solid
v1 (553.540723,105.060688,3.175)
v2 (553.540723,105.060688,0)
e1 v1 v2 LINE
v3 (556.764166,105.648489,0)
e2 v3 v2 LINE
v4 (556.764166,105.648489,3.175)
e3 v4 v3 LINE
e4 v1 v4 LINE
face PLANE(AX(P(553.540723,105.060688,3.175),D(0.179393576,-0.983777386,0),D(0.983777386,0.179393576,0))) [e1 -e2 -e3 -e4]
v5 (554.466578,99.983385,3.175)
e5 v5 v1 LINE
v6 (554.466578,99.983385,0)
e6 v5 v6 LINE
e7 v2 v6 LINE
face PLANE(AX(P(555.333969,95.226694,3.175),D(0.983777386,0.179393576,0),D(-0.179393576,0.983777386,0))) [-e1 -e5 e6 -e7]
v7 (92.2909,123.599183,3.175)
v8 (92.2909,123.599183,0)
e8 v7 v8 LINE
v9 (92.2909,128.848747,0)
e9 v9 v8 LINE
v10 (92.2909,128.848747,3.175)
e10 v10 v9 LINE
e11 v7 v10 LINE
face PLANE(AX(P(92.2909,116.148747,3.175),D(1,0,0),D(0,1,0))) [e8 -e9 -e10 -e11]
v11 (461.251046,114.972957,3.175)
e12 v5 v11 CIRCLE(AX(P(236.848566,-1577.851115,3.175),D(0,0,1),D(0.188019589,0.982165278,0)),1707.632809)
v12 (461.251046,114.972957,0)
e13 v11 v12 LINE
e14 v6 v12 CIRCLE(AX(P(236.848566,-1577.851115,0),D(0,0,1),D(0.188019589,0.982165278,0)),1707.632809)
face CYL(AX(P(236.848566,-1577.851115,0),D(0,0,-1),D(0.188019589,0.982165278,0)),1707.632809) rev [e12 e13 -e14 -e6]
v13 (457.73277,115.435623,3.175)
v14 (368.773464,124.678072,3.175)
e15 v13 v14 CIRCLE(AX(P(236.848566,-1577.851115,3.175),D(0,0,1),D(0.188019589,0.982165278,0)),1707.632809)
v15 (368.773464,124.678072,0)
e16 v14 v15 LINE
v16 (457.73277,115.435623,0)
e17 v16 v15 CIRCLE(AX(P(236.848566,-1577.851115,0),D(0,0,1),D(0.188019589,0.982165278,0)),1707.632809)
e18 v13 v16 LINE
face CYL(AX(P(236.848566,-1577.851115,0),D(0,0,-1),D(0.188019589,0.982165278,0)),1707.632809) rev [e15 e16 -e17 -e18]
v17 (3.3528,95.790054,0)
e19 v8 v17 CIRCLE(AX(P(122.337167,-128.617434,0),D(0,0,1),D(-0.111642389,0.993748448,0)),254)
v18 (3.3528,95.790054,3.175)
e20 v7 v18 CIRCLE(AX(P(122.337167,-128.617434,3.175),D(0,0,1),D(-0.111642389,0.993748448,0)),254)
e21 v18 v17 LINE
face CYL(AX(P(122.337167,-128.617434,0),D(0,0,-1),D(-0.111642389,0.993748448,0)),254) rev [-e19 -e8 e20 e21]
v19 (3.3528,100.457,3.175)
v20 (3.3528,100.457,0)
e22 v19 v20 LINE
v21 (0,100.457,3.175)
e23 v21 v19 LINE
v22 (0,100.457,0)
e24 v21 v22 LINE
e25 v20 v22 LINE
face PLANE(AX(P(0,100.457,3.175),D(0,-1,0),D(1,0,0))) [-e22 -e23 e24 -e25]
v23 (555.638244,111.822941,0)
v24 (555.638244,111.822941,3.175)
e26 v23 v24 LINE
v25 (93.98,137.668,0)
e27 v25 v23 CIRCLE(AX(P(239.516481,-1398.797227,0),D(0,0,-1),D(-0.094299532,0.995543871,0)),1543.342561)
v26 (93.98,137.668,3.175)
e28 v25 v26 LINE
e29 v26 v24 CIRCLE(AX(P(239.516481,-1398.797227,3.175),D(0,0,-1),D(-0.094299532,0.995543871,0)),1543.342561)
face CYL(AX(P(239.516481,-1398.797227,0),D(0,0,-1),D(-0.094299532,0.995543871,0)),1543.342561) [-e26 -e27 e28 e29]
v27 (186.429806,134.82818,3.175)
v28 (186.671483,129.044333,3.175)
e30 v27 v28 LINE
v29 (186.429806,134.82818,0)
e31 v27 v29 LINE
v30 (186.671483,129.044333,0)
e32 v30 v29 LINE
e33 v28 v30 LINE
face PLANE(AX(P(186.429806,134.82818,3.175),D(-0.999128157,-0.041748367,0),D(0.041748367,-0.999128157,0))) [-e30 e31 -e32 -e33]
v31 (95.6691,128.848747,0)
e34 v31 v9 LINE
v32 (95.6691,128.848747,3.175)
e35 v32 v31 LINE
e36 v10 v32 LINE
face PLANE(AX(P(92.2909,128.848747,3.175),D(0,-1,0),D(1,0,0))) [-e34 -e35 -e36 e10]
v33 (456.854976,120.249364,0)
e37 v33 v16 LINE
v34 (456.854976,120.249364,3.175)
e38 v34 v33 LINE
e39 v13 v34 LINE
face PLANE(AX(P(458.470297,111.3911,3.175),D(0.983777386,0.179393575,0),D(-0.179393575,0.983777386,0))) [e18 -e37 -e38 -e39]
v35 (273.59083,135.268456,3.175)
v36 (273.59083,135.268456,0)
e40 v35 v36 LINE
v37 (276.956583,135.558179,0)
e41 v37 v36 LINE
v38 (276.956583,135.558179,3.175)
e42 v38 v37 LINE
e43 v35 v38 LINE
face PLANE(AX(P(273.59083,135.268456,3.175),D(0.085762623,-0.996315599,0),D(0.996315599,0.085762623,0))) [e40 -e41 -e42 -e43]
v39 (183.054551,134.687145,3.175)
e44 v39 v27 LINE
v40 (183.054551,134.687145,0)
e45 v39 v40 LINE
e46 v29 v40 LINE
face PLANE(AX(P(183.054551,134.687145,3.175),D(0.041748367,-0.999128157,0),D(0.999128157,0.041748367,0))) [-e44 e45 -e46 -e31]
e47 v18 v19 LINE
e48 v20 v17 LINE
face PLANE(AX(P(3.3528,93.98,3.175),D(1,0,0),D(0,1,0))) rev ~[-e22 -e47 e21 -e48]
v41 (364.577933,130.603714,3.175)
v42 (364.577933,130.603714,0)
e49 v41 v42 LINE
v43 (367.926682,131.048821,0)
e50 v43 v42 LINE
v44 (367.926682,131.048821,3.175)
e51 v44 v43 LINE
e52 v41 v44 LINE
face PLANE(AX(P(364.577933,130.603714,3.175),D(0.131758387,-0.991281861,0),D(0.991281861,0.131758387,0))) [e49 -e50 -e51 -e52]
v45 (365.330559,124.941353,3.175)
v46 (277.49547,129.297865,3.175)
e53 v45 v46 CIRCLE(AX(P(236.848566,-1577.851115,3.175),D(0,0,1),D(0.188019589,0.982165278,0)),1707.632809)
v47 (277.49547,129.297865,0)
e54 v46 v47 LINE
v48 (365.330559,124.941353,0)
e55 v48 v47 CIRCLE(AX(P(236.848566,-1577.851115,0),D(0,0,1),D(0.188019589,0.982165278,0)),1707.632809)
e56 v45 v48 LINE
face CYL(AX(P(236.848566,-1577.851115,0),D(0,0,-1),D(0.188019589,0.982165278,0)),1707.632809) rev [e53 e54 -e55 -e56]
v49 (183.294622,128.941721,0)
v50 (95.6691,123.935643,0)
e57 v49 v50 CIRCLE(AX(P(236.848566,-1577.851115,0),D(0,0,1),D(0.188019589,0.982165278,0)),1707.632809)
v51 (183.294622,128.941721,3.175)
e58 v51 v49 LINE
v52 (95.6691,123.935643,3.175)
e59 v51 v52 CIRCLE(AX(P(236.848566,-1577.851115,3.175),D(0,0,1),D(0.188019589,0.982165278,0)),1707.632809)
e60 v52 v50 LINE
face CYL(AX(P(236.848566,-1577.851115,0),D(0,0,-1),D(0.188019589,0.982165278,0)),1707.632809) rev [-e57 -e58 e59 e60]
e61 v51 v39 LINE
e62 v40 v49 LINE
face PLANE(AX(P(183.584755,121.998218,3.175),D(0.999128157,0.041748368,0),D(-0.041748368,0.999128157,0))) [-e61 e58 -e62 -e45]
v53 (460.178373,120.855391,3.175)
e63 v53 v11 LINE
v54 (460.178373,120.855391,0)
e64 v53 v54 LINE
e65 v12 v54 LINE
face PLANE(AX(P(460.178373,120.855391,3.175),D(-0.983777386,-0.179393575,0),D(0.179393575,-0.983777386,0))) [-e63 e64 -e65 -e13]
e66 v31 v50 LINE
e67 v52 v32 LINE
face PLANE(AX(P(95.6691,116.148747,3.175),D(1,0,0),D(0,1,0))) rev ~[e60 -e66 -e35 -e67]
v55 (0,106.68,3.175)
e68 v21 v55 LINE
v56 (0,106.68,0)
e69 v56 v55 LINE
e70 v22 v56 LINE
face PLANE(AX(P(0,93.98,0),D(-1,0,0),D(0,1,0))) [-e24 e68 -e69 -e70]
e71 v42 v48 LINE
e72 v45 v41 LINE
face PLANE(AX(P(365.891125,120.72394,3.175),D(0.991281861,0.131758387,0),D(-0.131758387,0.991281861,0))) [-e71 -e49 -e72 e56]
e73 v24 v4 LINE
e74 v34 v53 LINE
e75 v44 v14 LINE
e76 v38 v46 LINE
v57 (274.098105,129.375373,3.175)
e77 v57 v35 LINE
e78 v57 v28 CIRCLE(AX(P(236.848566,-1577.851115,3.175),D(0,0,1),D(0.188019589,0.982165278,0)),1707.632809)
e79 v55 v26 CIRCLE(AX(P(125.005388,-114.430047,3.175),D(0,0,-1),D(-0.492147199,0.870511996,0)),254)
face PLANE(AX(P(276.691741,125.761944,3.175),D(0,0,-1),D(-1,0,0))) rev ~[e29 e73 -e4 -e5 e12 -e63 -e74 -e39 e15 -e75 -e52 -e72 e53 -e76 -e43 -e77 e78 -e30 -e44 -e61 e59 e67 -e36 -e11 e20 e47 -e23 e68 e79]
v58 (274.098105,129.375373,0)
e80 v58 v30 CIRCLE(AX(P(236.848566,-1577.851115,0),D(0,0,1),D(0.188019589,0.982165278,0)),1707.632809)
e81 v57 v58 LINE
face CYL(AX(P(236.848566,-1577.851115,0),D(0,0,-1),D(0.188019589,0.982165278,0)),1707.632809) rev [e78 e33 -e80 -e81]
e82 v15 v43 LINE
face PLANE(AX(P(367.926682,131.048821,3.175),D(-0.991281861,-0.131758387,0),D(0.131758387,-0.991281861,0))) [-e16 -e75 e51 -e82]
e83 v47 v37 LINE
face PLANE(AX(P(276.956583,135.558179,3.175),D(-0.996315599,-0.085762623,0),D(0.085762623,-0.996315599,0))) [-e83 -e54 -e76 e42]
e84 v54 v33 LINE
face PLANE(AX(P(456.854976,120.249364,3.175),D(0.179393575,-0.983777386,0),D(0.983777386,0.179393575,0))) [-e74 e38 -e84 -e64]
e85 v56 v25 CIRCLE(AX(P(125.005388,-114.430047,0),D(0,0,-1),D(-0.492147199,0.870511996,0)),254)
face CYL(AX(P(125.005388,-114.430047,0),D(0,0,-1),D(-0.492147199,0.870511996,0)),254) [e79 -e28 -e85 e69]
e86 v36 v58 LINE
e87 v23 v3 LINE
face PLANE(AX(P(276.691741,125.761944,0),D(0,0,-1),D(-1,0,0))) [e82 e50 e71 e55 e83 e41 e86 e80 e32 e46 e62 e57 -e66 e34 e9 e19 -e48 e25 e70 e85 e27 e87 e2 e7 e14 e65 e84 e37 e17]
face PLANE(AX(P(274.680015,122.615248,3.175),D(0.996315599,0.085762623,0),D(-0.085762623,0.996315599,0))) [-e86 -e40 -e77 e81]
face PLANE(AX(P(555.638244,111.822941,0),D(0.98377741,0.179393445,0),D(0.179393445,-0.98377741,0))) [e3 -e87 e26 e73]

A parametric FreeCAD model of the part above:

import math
import FreeCAD as App
import Part
import Sketcher
Q = App.Units.Quantity


def add_polygon(sketch, points):
    """Adds a closed chain of lines whose ends are joined by coincident constraints."""
    first, n = sketch.GeometryCount, len(points)
    for a, b in zip(points, points[1:] + points[:1]):
        sketch.addGeometry(Part.LineSegment(App.Vector(*a, 0), App.Vector(*b, 0)), False)
    for i in range(n):
        sketch.addConstraint(Sketcher.Constraint("Coincident", first + i, 2, first + (i + 1) % n, 1))

doc = App.newDocument("Part")
body = doc.addObject("PartDesign::Body", "Body")

# Sketch on XY plane
sketch1 = body.newObject("Sketcher::SketchObject", "Sketch")
sketch1.AttachmentSupport = (doc.getObject("XY_Plane"), [""])
sketch1.MapMode = "FlatFace"
sketch1.addGeometry(Part.LineSegment(App.Vector(558, 99, 0), App.Vector(556, 112, 0)), False)
sketch1.addGeometry(Part.ArcOfCircle(Part.Circle(App.Vector(240, -1399, 0), App.Vector(0, 0, 1), 1543), math.radians(78.18), math.radians(95.41)), False)
sketch1.addGeometry(Part.ArcOfCircle(Part.Circle(App.Vector(125, -114, 0), App.Vector(0, 0, 1), 254), math.radians(97), math.radians(119)), False)
sketch1.addGeometry(Part.LineSegment(App.Vector(0, 107, 0), App.Vector(0, 94, 0)), False)
sketch1.addGeometry(Part.ArcOfCircle(Part.Circle(App.Vector(122, -129, 0), App.Vector(0, 0, 1), 254), math.radians(96), math.radians(119)), False)
sketch1.addGeometry(Part.ArcOfCircle(Part.Circle(App.Vector(237, -1578, 0), App.Vector(0, 0, 1), 1708), math.radians(79.16), math.radians(94.8)), False)
sketch1.addConstraint(Sketcher.Constraint("Coincident", 0, 2, 1, 1))
sketch1.addConstraint(Sketcher.Constraint("Coincident", 1, 2, 2, 1))
sketch1.addConstraint(Sketcher.Constraint("Coincident", 2, 2, 3, 1))
sketch1.addConstraint(Sketcher.Constraint("Coincident", 3, 2, 4, 2))
sketch1.addConstraint(Sketcher.Constraint("Coincident", 4, 1, 5, 2))
sketch1.addConstraint(Sketcher.Constraint("Coincident", 5, 1, 0, 1))
sketch1.addConstraint(Sketcher.Constraint("Vertical", 3))
sketch1.addConstraint(Sketcher.Constraint("Equal", 2, 4))
sketch1.addConstraint(Sketcher.Constraint("PointOnObject", 2, 2, -2))
sketch1.addConstraint(Sketcher.Constraint("Vertical", 1, 2, 4, 1))
sketch1.addConstraint(Sketcher.Constraint("Radius", 2, Q("10 in")))
sketch1.addConstraint(Sketcher.Constraint("DistanceY", 3, 2, 3, 1, Q("0.5 in")))
sketch1.addConstraint(Sketcher.Constraint("DistanceX", -1, 1, 1, 2, Q("3.7 in")))
sketch1.addConstraint(Sketcher.Constraint("DistanceY", -1, 1, 2, 2, Q("4.2 in")))
sketch1.addConstraint(Sketcher.Constraint("DistanceY", -1, 1, 1, 2, Q("5.42 in")))
sketch1.addConstraint(Sketcher.Constraint("Radius", 1, Q("1543.342561 mm")))
sketch1.addConstraint(Sketcher.Constraint("Radius", 5, Q("1707.632809 mm")))
sketch1.addConstraint(Sketcher.Constraint("DistanceX", 4, 3, 5, 3, Q("114.511399 mm")))
sketch1.addConstraint(Sketcher.Constraint("Distance", 0, Q("12.702469 mm")))
sketch1.addConstraint(Sketcher.Constraint("DistanceX", -1, 1, 1, 3, Q("239.516481 mm")))
sketch1.addConstraint(Sketcher.Constraint("DistanceY", -1, 1, 0, 2, Q("111.822941 mm")))
sketch1.addConstraint(Sketcher.Constraint("DistanceY", -1, 1, 4, 1, Q("123.794672 mm")))
pad1 = body.newObject("PartDesign::Pad", "Pad")
pad1.Profile = sketch1
pad1.Length = Q("0.125 in")

# Sketch on XY plane
sketch2 = body.newObject("Sketcher::SketchObject", "Sketch001")
sketch2.AttachmentSupport = (doc.getObject("XY_Plane"), [""])
sketch2.MapMode = "FlatFace"
sketch2.AttachmentOffset = App.Placement(App.Vector(0, 0, 0.125 * 25.4), App.Rotation())
add_polygon(sketch2, [(0, 100.5), (0, 94), (3.4, 94), (3.4, 100.5)])  # lines 0-3
add_polygon(sketch2, [(92.3, 128.8), (92.3, 116.1), (95.7, 116.1), (95.7, 128.8)])  # lines 4-7
add_polygon(sketch2, [(186.4, 134.8), (183.1, 134.7), (183.6, 122), (187, 122.1)])  # lines 8-11
add_polygon(sketch2, [(367.9, 131), (364.6, 130.6), (365.9, 120.7), (369.2, 121.2)])  # lines 12-15
add_polygon(sketch2, [(299.1, -122.7), (298.5, -116.3), (295.4, -116.6), (295.9, -122.9)])  # lines 16-19
add_polygon(sketch2, [(277, 135.6), (273.6, 135.3), (274.7, 122.6), (278, 122.9)])  # lines 20-23
add_polygon(sketch2, [(460.2, 120.9), (456.9, 120.2), (458.5, 111.4), (461.8, 112)])  # lines 24-27
add_polygon(sketch2, [(556.9, 105.7), (553.5, 105.1), (555.3, 95.2), (558.7, 95.8)])  # lines 28-31
sketch2.addConstraint(Sketcher.Constraint("Vertical", 0))
sketch2.addConstraint(Sketcher.Constraint("Horizontal", 1))
sketch2.addConstraint(Sketcher.Constraint("Vertical", 2))
sketch2.addConstraint(Sketcher.Constraint("Horizontal", 3))
sketch2.addConstraint(Sketcher.Constraint("Vertical", 4))
sketch2.addConstraint(Sketcher.Constraint("Horizontal", 5))
sketch2.addConstraint(Sketcher.Constraint("Vertical", 6))
sketch2.addConstraint(Sketcher.Constraint("Horizontal", 7))
sketch2.addConstraint(Sketcher.Constraint("PointOnObject", 0, 2, -2))
sketch2.addConstraint(Sketcher.Constraint("Perpendicular", 8, 9))
sketch2.addConstraint(Sketcher.Constraint("Perpendicular", 9, 10))
sketch2.addConstraint(Sketcher.Constraint("Perpendicular", 10, 11))
sketch2.addConstraint(Sketcher.Constraint("Perpendicular", 12, 13))
sketch2.addConstraint(Sketcher.Constraint("Perpendicular", 13, 14))
sketch2.addConstraint(Sketcher.Constraint("Perpendicular", 14, 15))
sketch2.addConstraint(Sketcher.Constraint("Perpendicular", 16, 17))
sketch2.addConstraint(Sketcher.Constraint("Perpendicular", 17, 18))
sketch2.addConstraint(Sketcher.Constraint("Perpendicular", 18, 19))
sketch2.addConstraint(Sketcher.Constraint("Parallel", 19, 20))
sketch2.addConstraint(Sketcher.Constraint("Perpendicular", 20, 21))
sketch2.addConstraint(Sketcher.Constraint("Perpendicular", 21, 22))
sketch2.addConstraint(Sketcher.Constraint("Perpendicular", 22, 23))
sketch2.addConstraint(Sketcher.Constraint("Perpendicular", 24, 25))
sketch2.addConstraint(Sketcher.Constraint("Perpendicular", 25, 26))
sketch2.addConstraint(Sketcher.Constraint("Perpendicular", 26, 27))
sketch2.addConstraint(Sketcher.Constraint("Perpendicular", 27, 28))
sketch2.addConstraint(Sketcher.Constraint("Perpendicular", 28, 29))
sketch2.addConstraint(Sketcher.Constraint("Perpendicular", 29, 30))
sketch2.addConstraint(Sketcher.Constraint("Perpendicular", 30, 31))
sketch2.addConstraint(Sketcher.Constraint("Equal", 10, 12))
sketch2.addConstraint(Sketcher.Constraint("Equal", 14, 20))
sketch2.addConstraint(Sketcher.Constraint("Equal", 11, 21))
sketch2.addConstraint(Sketcher.Constraint("Equal", 22, 24))
sketch2.addConstraint(Sketcher.Constraint("Equal", 26, 28))
sketch2.addConstraint(Sketcher.Constraint("DistanceY", 4, 2, 4, 1, Q("0.5 in")))
sketch2.addConstraint(Sketcher.Constraint("Distance", 9, Q("0.5 in")))
sketch2.addConstraint(Sketcher.Constraint("DistanceY", -1, 1, 0, 2, Q("3.7 in")))
sketch2.addConstraint(Sketcher.Constraint("DistanceX", 1, 1, 1, 2, Q("0.132 in")))
sketch2.addConstraint(Sketcher.Constraint("DistanceX", 5, 1, 5, 2, Q("0.133 in")))
sketch2.addConstraint(Sketcher.Constraint("DistanceY", 0, 2, 0, 1, Q("0.255 in")))
sketch2.addConstraint(Sketcher.Constraint("Distance", 8, Q("0.133 in")))
sketch2.addConstraint(Sketcher.Constraint("Distance", 17, Q("0.125 in")))
sketch2.addConstraint(Sketcher.Constraint("DistanceX", -1, 1, 4, 2, Q("3.6335 in")))
sketch2.addConstraint(Sketcher.Constraint("DistanceY", 22, 2, 12, 2, Q("0.3031001 in")))
sketch2.addConstraint(Sketcher.Constraint("DistanceY", 19, 2, -1, 1, Q("122.651899 mm")))
sketch2.addConstraint(Sketcher.Constraint("DistanceY", -1, 1, 25, 2, Q("111.3911 mm")))
sketch2.addConstraint(Sketcher.Constraint("DistanceY", 6, 2, 8, 2, Q("5.838399 mm")))
sketch2.addConstraint(Sketcher.Constraint("DistanceX", 18, 2, 16, 2, Q("2.6152 mm")))
sketch2.addConstraint(Sketcher.Constraint("DistanceX", 19, 2, 14, 2, Q("70.1586 mm")))
sketch2.addConstraint(Sketcher.Constraint("DistanceX", 14, 2, 27, 2, Q("90.9385 mm")))
sketch2.addConstraint(Sketcher.Constraint("Distance", 16, Q("6.390922 mm")))
sketch2.addConstraint(Sketcher.Constraint("DistanceX", -1, 1, 8, 2, Q("183.054551 mm")))
sketch2.addConstraint(Sketcher.Constraint("DistanceX", -1, 1, 10, 2, Q("186.96001 mm")))
sketch2.addConstraint(Sketcher.Constraint("DistanceY", -1, 1, 11, 2, Q("134.82818 mm")))
sketch2.addConstraint(Sketcher.Constraint("DistanceY", -1, 1, 13, 2, Q("120.72394 mm")))
sketch2.addConstraint(Sketcher.Constraint("DistanceX", -1, 1, 15, 2, Q("367.926682 mm")))
sketch2.addConstraint(Sketcher.Constraint("DistanceY", -1, 1, 15, 2, Q("131.048821 mm")))
sketch2.addConstraint(Sketcher.Constraint("DistanceX", -1, 1, 16, 2, Q("298.533171 mm")))
sketch2.addConstraint(Sketcher.Constraint("DistanceX", -1, 1, 20, 2, Q("273.59083 mm")))
sketch2.addConstraint(Sketcher.Constraint("DistanceY", -1, 1, 27, 2, Q("120.855391 mm")))
sketch2.addConstraint(Sketcher.Constraint("DistanceY", -1, 1, 28, 2, Q("105.060688 mm")))
sketch2.addConstraint(Sketcher.Constraint("DistanceX", -1, 1, 29, 2, Q("555.333969 mm")))
sketch2.addConstraint(Sketcher.Constraint("DistanceY", -1, 1, 30, 2, Q("95.832722 mm")))
sketch2.addConstraint(Sketcher.Constraint("DistanceX", -1, 1, 31, 2, Q("556.864119 mm")))
pocket1 = body.newObject("PartDesign::Pocket", "Pocket")
pocket1.Profile = sketch2
pocket1.Type = "ThroughAll"

doc.recompute()
